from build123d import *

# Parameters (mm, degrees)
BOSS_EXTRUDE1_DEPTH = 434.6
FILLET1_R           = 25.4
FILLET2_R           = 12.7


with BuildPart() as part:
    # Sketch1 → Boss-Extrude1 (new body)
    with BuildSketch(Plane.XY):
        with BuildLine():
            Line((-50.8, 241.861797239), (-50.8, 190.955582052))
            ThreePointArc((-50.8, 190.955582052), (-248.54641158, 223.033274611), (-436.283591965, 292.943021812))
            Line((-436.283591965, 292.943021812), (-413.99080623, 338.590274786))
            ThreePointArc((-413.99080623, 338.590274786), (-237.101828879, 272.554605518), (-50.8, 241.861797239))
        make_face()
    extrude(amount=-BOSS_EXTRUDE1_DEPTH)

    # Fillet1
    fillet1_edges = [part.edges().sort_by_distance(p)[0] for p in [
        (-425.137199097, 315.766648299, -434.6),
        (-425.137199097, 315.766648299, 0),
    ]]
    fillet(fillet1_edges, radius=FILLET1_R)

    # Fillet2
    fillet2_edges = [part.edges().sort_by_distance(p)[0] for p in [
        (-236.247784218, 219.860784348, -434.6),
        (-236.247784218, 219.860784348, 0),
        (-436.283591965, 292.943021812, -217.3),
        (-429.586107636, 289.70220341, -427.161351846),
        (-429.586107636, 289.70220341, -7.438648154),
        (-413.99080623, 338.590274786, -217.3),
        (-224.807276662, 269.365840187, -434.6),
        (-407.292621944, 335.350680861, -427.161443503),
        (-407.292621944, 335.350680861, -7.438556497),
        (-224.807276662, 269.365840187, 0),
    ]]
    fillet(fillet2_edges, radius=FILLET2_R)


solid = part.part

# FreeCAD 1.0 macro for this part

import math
import FreeCAD as App
import Part
import Sketcher
from FreeCAD import Vector
Q = App.Units.Quantity


def edges_at(feature, points):
    """Names of the edges that pass closest to the given points."""
    edges = feature.Shape.Edges
    near = lambda p: min(range(len(edges)), key=lambda i: edges[i].distToShape(Part.Vertex(*p))[0])
    return sorted({f"Edge{near(p) + 1}" for p in points})

doc = App.newDocument("Part")
body = doc.addObject("PartDesign::Body", "Body")

sketch1 = body.newObject("Sketcher::SketchObject", "Sketch")
sketch1.AttachmentSupport = (doc.getObject("XY_Plane"), [""])
sketch1.MapMode = "FlatFace"
sketch1.addGeometry([
    Part.LineSegment(Vector(-51, 191, 0), Vector(-51, 242, 0)),
    Part.ArcOfCircle(Part.Circle(Vector(14, 1214, 0), Vector(0, 0, 1), 975), math.radians(-116), math.radians(-94)),
    Part.LineSegment(Vector(-414, 339, 0), Vector(-436, 293, 0)),
    Part.ArcOfCircle(Part.Circle(Vector(14, 1214, 0), Vector(0, 0, 1), 1026), math.radians(-116), math.radians(-94)),
], False)
sketch1.addConstraint([
    Sketcher.Constraint("Coincident", 0, 2, 1, 2),
    Sketcher.Constraint("Coincident", 1, 1, 2, 1),
    Sketcher.Constraint("Coincident", 2, 2, 3, 1),
    Sketcher.Constraint("Coincident", 3, 2, 0, 1),
    Sketcher.Constraint("Vertical", 0),
    Sketcher.Constraint("Coincident", 3, 3, 1, 3),
    Sketcher.Constraint("Distance", 2, Q("2 in")),
    Sketcher.Constraint("DistanceX", 0, 2, -1, 1, Q("2 in")),
    Sketcher.Constraint("Radius", 1, Q("38.375 in")),
    Sketcher.Constraint("DistanceX", -1, 1, 1, 3, 13.75202),
    Sketcher.Constraint("DistanceY", -1, 1, 1, 3, 1214.446941),
    Sketcher.Constraint("DistanceX", 2, 2, -1, 1, 436.283592),
    Sketcher.Constraint("Angle", 2, Q("-116.029533 deg")),
])
pad1 = body.newObject("PartDesign::Pad", "Pad")
pad1.Profile = sketch1
pad1.Length = 434.6
pad1.Reversed = True
doc.recompute()

fillet = body.newObject("PartDesign::Fillet", "Fillet")
fillet.Base = (pad1, edges_at(pad1, [(-425.137, 315.767, -434.6), (-425.137, 315.767, 0)]))
fillet.Radius = Q("1 in")
doc.recompute()

fillet2 = body.newObject("PartDesign::Fillet", "Fillet001")
fillet2.Base = (fillet, edges_at(fillet, [
    (-236.248, 219.861, -434.6),
    (-236.248, 219.861, 0),
    (-436.284, 292.943, -217.3),
    (-429.586, 289.702, -427.161),
    (-429.586, 289.702, -7.439),
    (-413.991, 338.59, -217.3),
    (-224.807, 269.366, -434.6),
    (-407.293, 335.351, -427.161),
    (-407.293, 335.351, -7.439),
    (-224.807, 269.366, 0),
]))
fillet2.Radius = Q("0.5 in")

doc.recompute()
